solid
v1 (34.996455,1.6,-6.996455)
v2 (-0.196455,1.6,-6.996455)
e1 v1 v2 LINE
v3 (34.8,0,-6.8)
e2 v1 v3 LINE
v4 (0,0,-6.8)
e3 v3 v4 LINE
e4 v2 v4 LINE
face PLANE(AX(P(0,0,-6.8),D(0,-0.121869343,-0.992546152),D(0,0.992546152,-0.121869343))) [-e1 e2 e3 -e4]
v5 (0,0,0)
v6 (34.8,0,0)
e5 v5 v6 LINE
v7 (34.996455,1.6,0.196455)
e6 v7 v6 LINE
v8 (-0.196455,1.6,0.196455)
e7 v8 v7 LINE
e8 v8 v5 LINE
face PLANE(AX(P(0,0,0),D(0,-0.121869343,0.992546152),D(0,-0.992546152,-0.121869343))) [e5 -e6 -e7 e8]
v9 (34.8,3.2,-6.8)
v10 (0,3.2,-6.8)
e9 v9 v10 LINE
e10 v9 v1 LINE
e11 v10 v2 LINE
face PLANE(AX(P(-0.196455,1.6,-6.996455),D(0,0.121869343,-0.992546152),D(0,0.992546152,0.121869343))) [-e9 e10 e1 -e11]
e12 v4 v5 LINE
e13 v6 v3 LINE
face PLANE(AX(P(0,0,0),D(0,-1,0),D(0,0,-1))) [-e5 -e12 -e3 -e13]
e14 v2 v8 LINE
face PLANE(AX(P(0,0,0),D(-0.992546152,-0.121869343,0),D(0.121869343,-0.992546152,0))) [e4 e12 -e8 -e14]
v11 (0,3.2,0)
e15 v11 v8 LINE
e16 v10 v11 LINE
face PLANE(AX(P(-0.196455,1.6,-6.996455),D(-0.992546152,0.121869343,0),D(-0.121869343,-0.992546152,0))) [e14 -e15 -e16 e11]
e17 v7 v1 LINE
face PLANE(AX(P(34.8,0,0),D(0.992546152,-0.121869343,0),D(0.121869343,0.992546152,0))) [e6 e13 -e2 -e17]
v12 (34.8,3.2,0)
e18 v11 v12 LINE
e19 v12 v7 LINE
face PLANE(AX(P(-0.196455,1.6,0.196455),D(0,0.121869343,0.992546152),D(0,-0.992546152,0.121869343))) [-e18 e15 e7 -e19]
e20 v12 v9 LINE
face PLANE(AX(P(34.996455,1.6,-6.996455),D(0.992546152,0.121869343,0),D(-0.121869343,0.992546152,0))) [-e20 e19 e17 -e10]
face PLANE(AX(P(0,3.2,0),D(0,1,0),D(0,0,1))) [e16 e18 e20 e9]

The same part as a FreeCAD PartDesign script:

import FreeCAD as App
import Part
import Sketcher
from FreeCAD import Vector

doc = App.newDocument("Part")
body = doc.addObject("PartDesign::Body", "Body")

# Sketch on XZ plane
sketch1 = body.newObject("Sketcher::SketchObject", "Sketch")
sketch1.AttachmentSupport = (doc.getObject("XZ_Plane"), [""])
sketch1.MapMode = "FlatFace"
sketch1.addGeometry(Part.LineSegment(Vector(0, -7, 0), Vector(0, 0, 0)), False)
sketch1.addGeometry(Part.LineSegment(Vector(0, 0, 0), Vector(35, 0, 0)), False)
sketch1.addGeometry(Part.LineSegment(Vector(35, 0, 0), Vector(35, -7, 0)), False)
sketch1.addGeometry(Part.LineSegment(Vector(35, -7, 0), Vector(0, -7, 0)), False)
sketch1.addConstraint(Sketcher.Constraint("Coincident", 0, 2, 1, 1))
sketch1.addConstraint(Sketcher.Constraint("Coincident", 1, 2, 2, 1))
sketch1.addConstraint(Sketcher.Constraint("Coincident", 2, 2, 3, 1))
sketch1.addConstraint(Sketcher.Constraint("Coincident", 3, 2, 0, 1))
sketch1.addConstraint(Sketcher.Constraint("Vertical", 0))
sketch1.addConstraint(Sketcher.Constraint("Horizontal", 1))
sketch1.addConstraint(Sketcher.Constraint("Vertical", 2))
sketch1.addConstraint(Sketcher.Constraint("Horizontal", 3))
sketch1.addConstraint(Sketcher.Constraint("Coincident", 0, 2, -1, 1))
sketch1.addConstraint(Sketcher.Constraint("DistanceX", 1, 1, 1, 2, 34.8))
sketch1.addConstraint(Sketcher.Constraint("DistanceY", 0, 1, 0, 2, 6.8))
pad1 = body.newObject("PartDesign::Pad", "Pad")
pad1.Profile = sketch1
pad1.Length = 1.6
pad1.Reversed = True
pad1.TaperAngle = 7

# Sketch on XZ plane
sketch2 = body.newObject("Sketcher::SketchObject", "Sketch001")
sketch2.AttachmentSupport = (doc.getObject("XZ_Plane"), [""])
sketch2.MapMode = "FlatFace"
sketch2.AttachmentOffset = App.Placement(Vector(0, 0, -1.6), App.Rotation())
sketch2.addGeometry(Part.LineSegment(Vector(0, -7, 0), Vector(0, 0, 0)), False)
sketch2.addGeometry(Part.LineSegment(Vector(0, 0, 0), Vector(35, 0, 0)), False)
sketch2.addGeometry(Part.LineSegment(Vector(35, 0, 0), Vector(35, -7, 0)), False)
sketch2.addGeometry(Part.LineSegment(Vector(35, -7, 0), Vector(0, -7, 0)), False)
sketch2.addConstraint(Sketcher.Constraint("Coincident", 0, 2, 1, 1))
sketch2.addConstraint(Sketcher.Constraint("Coincident", 1, 2, 2, 1))
sketch2.addConstraint(Sketcher.Constraint("Coincident", 2, 2, 3, 1))
sketch2.addConstraint(Sketcher.Constraint("Coincident", 3, 2, 0, 1))
sketch2.addConstraint(Sketcher.Constraint("Vertical", 0))
sketch2.addConstraint(Sketcher.Constraint("Horizontal", 1))
sketch2.addConstraint(Sketcher.Constraint("Vertical", 2))
sketch2.addConstraint(Sketcher.Constraint("Horizontal", 3))
sketch2.addConstraint(Sketcher.Constraint("DistanceX", 1, 1, 1, 2, 35.192911))
sketch2.addConstraint(Sketcher.Constraint("DistanceY", 0, 1, 0, 2, 7.192911))
sketch2.addConstraint(Sketcher.Constraint("DistanceX", 0, 2, -1, 1, 0.196455))
sketch2.addConstraint(Sketcher.Constraint("DistanceY", -1, 1, 0, 2, 0.196455))
pad2 = body.newObject("PartDesign::Pad", "Pad001")
pad2.Profile = sketch2
pad2.Length = 1.6
pad2.Reversed = True
pad2.TaperAngle = -7

doc.recompute()
